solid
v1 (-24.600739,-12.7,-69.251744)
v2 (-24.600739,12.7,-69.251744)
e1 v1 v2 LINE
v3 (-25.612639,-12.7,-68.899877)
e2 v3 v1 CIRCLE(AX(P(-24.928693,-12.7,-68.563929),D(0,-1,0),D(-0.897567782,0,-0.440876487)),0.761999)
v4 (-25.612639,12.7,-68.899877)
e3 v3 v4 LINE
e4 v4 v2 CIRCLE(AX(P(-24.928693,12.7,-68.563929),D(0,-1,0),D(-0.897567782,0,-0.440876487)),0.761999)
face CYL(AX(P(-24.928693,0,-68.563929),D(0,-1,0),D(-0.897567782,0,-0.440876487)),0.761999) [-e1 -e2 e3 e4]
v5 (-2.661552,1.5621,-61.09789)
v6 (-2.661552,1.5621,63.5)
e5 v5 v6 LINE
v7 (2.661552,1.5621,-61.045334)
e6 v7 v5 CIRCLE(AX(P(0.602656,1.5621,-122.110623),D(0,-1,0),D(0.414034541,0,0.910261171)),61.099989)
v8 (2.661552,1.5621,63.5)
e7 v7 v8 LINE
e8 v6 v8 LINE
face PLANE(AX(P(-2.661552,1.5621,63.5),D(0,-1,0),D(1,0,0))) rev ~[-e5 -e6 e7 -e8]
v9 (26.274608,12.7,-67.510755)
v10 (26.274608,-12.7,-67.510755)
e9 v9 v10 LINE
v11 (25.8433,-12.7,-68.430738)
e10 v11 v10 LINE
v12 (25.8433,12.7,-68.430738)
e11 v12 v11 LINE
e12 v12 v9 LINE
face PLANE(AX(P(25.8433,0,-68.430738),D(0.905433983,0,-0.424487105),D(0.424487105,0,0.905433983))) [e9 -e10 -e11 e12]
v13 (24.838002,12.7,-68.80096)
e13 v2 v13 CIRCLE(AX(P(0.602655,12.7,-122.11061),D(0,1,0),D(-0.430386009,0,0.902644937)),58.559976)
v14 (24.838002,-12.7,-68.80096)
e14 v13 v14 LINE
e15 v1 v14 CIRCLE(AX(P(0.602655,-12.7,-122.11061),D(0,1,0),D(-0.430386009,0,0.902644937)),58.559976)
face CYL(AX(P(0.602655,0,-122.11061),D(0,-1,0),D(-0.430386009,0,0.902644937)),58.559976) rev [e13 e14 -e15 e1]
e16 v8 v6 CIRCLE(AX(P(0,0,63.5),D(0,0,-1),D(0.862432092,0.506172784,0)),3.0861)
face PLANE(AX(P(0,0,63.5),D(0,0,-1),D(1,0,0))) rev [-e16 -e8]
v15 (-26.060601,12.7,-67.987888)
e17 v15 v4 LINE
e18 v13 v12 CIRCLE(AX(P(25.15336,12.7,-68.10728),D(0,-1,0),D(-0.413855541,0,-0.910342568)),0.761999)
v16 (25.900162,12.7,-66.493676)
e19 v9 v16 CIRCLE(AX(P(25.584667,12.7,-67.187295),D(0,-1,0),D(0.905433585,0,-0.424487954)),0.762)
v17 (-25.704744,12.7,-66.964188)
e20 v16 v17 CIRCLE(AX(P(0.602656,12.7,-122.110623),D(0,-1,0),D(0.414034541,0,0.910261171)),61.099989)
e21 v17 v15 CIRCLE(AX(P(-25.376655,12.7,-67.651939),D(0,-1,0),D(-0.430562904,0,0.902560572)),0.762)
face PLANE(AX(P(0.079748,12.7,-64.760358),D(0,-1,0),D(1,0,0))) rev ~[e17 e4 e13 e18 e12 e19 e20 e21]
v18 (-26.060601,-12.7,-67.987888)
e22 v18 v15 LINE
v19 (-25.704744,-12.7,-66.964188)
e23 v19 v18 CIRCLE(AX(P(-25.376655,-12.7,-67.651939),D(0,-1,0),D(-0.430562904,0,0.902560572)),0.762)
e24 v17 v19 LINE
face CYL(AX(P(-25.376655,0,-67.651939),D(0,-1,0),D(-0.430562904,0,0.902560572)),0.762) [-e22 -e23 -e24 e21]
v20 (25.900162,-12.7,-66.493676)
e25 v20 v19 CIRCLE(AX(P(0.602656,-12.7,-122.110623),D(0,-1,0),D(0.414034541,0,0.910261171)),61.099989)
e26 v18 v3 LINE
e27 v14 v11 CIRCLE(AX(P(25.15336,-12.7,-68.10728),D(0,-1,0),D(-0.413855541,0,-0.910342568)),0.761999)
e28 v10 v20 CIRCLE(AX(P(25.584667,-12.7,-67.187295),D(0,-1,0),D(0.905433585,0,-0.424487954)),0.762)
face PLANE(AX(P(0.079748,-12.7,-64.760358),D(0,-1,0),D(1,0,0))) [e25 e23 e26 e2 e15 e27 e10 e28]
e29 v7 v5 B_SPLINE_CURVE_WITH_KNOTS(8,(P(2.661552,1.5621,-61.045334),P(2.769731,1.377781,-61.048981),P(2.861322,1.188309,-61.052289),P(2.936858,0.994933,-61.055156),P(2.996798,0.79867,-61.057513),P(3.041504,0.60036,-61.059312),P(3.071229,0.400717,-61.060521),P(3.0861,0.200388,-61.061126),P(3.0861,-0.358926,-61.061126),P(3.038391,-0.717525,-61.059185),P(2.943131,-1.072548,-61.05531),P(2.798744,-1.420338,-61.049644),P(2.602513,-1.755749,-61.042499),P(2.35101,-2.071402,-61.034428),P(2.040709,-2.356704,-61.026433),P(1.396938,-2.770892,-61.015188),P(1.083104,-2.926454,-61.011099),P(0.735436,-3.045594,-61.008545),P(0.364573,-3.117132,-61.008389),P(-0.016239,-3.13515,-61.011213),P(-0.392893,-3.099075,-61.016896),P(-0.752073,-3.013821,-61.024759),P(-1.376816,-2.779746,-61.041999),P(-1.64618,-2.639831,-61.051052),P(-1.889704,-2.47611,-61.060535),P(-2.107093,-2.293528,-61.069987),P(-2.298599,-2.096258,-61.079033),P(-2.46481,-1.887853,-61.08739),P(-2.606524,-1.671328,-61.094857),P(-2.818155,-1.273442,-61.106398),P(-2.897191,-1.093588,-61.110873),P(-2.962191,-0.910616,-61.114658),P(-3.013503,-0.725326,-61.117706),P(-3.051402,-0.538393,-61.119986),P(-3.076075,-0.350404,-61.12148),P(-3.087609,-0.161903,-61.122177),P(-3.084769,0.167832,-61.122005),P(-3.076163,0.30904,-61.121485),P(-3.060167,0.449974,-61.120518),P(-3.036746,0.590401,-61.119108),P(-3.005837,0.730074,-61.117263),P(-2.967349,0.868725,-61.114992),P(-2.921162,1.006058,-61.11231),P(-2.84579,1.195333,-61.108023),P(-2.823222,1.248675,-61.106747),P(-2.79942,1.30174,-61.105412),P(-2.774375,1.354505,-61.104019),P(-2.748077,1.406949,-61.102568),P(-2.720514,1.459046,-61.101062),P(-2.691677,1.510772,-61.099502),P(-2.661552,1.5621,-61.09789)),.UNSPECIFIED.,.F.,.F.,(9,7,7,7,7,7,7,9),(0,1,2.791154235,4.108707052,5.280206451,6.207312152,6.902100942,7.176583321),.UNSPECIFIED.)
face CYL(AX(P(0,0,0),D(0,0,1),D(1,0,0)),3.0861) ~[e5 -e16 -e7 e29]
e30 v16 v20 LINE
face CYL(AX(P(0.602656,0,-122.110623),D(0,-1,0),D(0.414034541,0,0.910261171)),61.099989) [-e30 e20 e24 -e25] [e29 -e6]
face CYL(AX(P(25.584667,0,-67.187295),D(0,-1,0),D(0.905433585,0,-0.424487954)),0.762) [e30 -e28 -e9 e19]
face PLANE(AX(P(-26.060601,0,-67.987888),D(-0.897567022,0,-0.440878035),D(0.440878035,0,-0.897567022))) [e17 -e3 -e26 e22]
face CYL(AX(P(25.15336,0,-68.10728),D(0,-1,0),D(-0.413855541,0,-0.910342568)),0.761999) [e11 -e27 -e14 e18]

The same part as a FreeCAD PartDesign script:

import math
import FreeCAD as App
import Part
import Sketcher
Q = App.Units.Quantity


def add_polygon(sketch, points):
    """Adds a closed chain of lines whose ends are joined by coincident constraints."""
    first, n = sketch.GeometryCount, len(points)
    for a, b in zip(points, points[1:] + points[:1]):
        sketch.addGeometry(Part.LineSegment(App.Vector(*a, 0), App.Vector(*b, 0)), False)
    for i in range(n):
        sketch.addConstraint(Sketcher.Constraint("Coincident", first + i, 2, first + (i + 1) % n, 1))

doc = App.newDocument("Part")
body = doc.addObject("PartDesign::Body", "Body")

sketch1 = doc.addObject("Sketcher::SketchObject", "Sketch")
body.addObject(sketch1)
sketch1.AttachmentSupport = (doc.XZ_Plane, [""])
sketch1.MapMode = "FlatFace"
add_polygon(sketch1, [(0, 63.5), (0, -63.5), (3.1, -63.5), (3.1, 63.5)])
sketch1.addConstraint([
    Sketcher.Constraint("Vertical", 0),
    Sketcher.Constraint("Horizontal", 1),
    Sketcher.Constraint("Vertical", 2),
    Sketcher.Constraint("Horizontal", 3),
    Sketcher.Constraint("Symmetric", 0, 2, 3, 2, -1, 1),
    Sketcher.Constraint("DistanceY", 0, 2, 0, 1, Q("5 in")),
    Sketcher.Constraint("DistanceX", 1, 1, 1, 2, Q("0.1215 in")),
])
revolution = doc.addObject("PartDesign::Revolution", "Revolution")
body.addObject(revolution)
revolution.Profile = sketch1
revolution.ReferenceAxis = (sketch1, ["V_Axis"])
revolution.Angle = 360

sketch2 = doc.addObject("Sketcher::SketchObject", "Sketch001")
body.addObject(sketch2)
sketch2.AttachmentSupport = (doc.XY_Plane, [""])
sketch2.MapMode = "FlatFace"
sketch2.AttachmentOffset = App.Placement(App.Vector(0, 0, 2.5 * 25.4), App.Rotation())
sketch2.addGeometry([
    Part.LineSegment(App.Vector(-2.7, 1.6, 0), App.Vector(2.7, 1.6, 0)),
    Part.ArcOfCircle(Part.Circle(App.Vector(0, 0, 0), App.Vector(0, 0, 1), 3.1), math.radians(30), math.radians(150)),
], False)
sketch2.addConstraint([
    Sketcher.Constraint("Coincident", 0, 1, 1, 2),
    Sketcher.Constraint("Coincident", 1, 1, 0, 2),
    Sketcher.Constraint("Horizontal", 0),
    Sketcher.Constraint("Coincident", 1, 3, -1, 1),
    Sketcher.Constraint("Radius", 1, Q("0.1215 in")),
    Sketcher.Constraint("DistanceY", -1, 1, 0, 1, Q("0.0615 in")),
])
pocket1 = doc.addObject("PartDesign::Pocket", "Pocket")
body.addObject(pocket1)
pocket1.Profile = sketch2
pocket1.Length = Q("5.914 in")

sketch3 = doc.addObject("Sketcher::SketchObject", "Sketch002")
body.addObject(sketch3)
sketch3.AttachmentSupport = (doc.XZ_Plane, [""])
sketch3.MapMode = "FlatFace"
sketch3.addGeometry([
    Part.ArcOfCircle(Part.Circle(App.Vector(0.602655, -122.11061, 0), App.Vector(0, 0, 1), 58.559976), math.radians(65.552761), math.radians(115.49206)),
    Part.ArcOfCircle(Part.Circle(App.Vector(25.15336, -68.10728, 0), App.Vector(0, 0, 1), 0.761999), math.radians(-114.447265), math.radians(-25.118167)),
    Part.LineSegment(App.Vector(25.8433, -68.430738, 0), App.Vector(26.274608, -67.510755, 0)),
    Part.ArcOfCircle(Part.Circle(App.Vector(25.584667, -67.187295, 0), App.Vector(0, 0, 1), 0.762), math.radians(-25.118257), math.radians(65.541455)),
    Part.ArcOfCircle(Part.Circle(App.Vector(0.602656, -122.110623, 0), App.Vector(0, 0, 1), 61.099989), math.radians(65.541468), math.radians(115.503301)),
    Part.ArcOfCircle(Part.Circle(App.Vector(-25.376655, -67.651939, 0), App.Vector(0, 0, 1), 0.762), math.radians(115.503289), math.radians(206.159923)),
    Part.LineSegment(App.Vector(-26.060601, -67.987888, 0), App.Vector(-25.612639, -68.899877, 0)),
    Part.ArcOfCircle(Part.Circle(App.Vector(-24.928693, -68.563929, 0), App.Vector(0, 0, 1), 0.761999), math.radians(-153.840182), math.radians(-64.507911)),
], False)
sketch3.addConstraint([
    Sketcher.Constraint("Coincident", 0, 1, 1, 1),
    Sketcher.Constraint("Coincident", 1, 2, 2, 1),
    Sketcher.Constraint("Coincident", 2, 2, 3, 1),
    Sketcher.Constraint("Coincident", 3, 2, 4, 1),
    Sketcher.Constraint("Coincident", 4, 2, 5, 1),
    Sketcher.Constraint("Coincident", 5, 2, 6, 1),
    Sketcher.Constraint("Coincident", 6, 2, 7, 1),
    Sketcher.Constraint("Coincident", 7, 2, 0, 2),
    Sketcher.Constraint("Radius", 1, Q("0.03 in")),
    Sketcher.Constraint("Radius", 3, Q("0.03 in")),
    Sketcher.Constraint("Radius", 5, Q("0.03 in")),
    Sketcher.Constraint("Radius", 7, Q("0.03 in")),
    Sketcher.Constraint("Radius", 4, Q("61.099989 mm")),
    Sketcher.Constraint("Radius", 0, Q("58.559976 mm")),
    Sketcher.Constraint("DistanceX", -1, 1, 1, 2, Q("25.8433 mm")),
    Sketcher.Constraint("DistanceX", 5, 2, -1, 1, Q("26.060601 mm")),
    Sketcher.Constraint("DistanceY", 1, 2, 5, 3, Q("0.778799 mm")),
    Sketcher.Constraint("DistanceX", 7, 3, 2, 2, Q("51.203301 mm")),
    Sketcher.Constraint("DistanceY", 5, 2, 4, 2, Q("1.0237 mm")),
    Sketcher.Constraint("DistanceX", 6, 2, 7, 2, Q("1.0119 mm")),
    Sketcher.Constraint("Distance", 2, Q("1.016069 mm")),
    Sketcher.Constraint("DistanceY", 0, 3, -1, 1, Q("122.11061 mm")),
    Sketcher.Constraint("DistanceX", -1, 1, 1, 3, Q("25.15336 mm")),
    Sketcher.Constraint("DistanceY", 1, 3, -1, 1, Q("68.10728 mm")),
    Sketcher.Constraint("DistanceY", 7, 3, -1, 1, Q("68.563929 mm")),
    Sketcher.Constraint("DistanceY", 0, 1, -1, 1, Q("68.80096 mm")),
    Sketcher.Constraint("DistanceX", -1, 1, 3, 2, Q("25.900162 mm")),
    Sketcher.Constraint("DistanceY", 4, 2, -1, 1, Q("66.964188 mm")),
    Sketcher.Constraint("DistanceX", 6, 2, -1, 1, Q("25.612639 mm")),
    Sketcher.Constraint("DistanceX", 4, 3, 3, 3, Q("24.982011 mm")),
])
pad1 = doc.addObject("PartDesign::Pad", "Pad")
body.addObject(pad1)
pad1.Profile = sketch3
pad1.Length = Q("1 in")
pad1.Midplane = True

doc.recompute()
